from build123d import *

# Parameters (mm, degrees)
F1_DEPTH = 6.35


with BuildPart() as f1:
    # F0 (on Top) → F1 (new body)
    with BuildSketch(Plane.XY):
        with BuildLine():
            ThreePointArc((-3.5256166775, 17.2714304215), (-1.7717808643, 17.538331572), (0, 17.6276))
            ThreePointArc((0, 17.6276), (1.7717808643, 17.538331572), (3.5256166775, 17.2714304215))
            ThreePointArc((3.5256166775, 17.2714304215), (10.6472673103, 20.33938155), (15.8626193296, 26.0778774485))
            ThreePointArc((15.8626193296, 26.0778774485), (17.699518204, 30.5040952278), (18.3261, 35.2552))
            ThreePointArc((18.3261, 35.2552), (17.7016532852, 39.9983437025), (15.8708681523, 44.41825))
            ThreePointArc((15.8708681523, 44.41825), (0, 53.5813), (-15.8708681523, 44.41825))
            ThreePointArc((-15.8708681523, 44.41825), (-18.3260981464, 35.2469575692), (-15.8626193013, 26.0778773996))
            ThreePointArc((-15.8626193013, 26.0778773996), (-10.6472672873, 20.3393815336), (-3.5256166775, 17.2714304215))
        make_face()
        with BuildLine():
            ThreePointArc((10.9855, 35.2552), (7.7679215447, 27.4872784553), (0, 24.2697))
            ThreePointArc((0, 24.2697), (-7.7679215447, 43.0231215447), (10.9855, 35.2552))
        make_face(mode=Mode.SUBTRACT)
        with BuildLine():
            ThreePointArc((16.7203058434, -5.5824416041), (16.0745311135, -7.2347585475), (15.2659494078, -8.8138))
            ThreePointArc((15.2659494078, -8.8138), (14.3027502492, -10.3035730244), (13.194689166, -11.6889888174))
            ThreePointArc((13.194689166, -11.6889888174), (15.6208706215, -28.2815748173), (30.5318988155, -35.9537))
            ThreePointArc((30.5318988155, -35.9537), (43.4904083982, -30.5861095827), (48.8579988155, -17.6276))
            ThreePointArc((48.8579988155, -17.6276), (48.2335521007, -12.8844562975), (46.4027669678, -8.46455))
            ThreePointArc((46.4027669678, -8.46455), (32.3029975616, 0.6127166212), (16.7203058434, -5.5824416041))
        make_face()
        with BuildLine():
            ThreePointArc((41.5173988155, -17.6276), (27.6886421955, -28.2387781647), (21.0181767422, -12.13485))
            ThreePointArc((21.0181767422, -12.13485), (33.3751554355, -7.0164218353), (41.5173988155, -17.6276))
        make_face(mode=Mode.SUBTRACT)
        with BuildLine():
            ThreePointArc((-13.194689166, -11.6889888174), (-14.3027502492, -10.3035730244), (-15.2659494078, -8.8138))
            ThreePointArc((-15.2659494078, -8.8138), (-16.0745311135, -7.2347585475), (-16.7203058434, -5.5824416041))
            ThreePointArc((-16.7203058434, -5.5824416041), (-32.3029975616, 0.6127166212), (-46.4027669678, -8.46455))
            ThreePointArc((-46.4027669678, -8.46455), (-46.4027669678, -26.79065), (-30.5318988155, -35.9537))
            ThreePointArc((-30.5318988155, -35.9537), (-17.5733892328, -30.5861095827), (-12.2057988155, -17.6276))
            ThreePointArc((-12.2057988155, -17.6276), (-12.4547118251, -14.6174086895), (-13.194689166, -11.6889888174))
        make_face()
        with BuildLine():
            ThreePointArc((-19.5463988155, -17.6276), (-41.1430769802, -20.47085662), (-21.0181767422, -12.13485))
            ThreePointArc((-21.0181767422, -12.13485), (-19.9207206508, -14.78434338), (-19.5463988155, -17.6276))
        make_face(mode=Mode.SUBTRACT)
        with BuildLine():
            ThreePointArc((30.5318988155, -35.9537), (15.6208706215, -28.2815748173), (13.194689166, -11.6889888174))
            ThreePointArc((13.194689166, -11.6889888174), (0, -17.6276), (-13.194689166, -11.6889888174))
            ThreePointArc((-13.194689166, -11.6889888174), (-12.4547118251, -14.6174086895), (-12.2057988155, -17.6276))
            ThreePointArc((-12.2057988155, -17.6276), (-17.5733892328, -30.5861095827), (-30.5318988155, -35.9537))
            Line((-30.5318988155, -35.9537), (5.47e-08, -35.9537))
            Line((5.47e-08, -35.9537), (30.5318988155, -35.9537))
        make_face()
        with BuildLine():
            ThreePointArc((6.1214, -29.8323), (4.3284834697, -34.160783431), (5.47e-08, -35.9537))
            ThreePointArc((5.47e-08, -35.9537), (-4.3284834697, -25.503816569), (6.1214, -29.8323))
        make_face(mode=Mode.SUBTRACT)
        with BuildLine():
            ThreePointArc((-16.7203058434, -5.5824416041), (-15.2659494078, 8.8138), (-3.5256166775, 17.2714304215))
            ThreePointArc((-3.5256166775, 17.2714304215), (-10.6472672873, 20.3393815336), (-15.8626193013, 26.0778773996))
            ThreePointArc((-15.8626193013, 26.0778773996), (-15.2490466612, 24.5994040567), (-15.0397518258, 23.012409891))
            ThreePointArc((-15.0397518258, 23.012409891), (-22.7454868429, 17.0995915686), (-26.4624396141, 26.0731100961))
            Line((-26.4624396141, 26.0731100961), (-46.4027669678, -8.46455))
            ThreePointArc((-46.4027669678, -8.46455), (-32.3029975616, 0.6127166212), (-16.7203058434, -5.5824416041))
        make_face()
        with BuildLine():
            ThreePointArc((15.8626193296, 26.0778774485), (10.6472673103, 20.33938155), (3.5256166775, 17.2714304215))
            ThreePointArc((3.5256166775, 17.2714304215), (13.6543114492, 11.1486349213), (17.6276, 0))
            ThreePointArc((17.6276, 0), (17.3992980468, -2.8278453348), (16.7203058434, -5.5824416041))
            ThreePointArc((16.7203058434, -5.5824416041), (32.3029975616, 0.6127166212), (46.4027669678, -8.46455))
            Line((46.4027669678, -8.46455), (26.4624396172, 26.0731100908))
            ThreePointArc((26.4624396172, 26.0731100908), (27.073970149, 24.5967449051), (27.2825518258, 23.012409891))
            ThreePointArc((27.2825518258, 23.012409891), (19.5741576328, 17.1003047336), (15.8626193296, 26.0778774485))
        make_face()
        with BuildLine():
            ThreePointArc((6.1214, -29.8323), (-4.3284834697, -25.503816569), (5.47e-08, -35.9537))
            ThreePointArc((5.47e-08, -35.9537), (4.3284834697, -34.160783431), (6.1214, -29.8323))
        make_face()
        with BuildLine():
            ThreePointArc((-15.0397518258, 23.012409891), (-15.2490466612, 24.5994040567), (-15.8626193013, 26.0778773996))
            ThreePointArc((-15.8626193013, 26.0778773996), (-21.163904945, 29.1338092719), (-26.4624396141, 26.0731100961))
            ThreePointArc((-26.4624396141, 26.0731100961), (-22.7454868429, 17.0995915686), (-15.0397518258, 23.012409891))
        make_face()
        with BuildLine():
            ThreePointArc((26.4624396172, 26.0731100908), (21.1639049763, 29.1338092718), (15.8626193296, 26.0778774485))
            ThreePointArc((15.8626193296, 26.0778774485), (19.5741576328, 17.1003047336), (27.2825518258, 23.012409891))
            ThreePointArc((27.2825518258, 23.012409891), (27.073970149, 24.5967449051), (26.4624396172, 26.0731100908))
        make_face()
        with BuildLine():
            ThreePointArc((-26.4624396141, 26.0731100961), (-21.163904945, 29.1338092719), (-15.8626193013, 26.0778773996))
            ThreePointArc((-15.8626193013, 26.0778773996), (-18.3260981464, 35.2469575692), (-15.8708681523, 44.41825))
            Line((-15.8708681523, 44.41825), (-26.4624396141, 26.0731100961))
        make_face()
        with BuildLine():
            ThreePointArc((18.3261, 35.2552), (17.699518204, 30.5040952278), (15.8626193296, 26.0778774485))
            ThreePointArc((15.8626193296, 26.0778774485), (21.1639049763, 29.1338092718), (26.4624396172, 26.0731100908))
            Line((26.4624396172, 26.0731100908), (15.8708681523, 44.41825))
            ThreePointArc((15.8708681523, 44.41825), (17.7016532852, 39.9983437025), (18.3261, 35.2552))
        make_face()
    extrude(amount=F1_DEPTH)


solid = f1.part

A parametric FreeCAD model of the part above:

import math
import FreeCAD as App
import Part
import Sketcher
from FreeCAD import Vector
Q = App.Units.Quantity

doc = App.newDocument("Part")
body = doc.addObject("PartDesign::Body", "Body")

sketch1 = body.newObject("Sketcher::SketchObject", "Sketch")
sketch1.AttachmentSupport = (doc.getObject("XY_Plane"), [""])
sketch1.MapMode = "FlatFace"
sketch1.addGeometry(Part.LineSegment(Vector(-26.5, 26.1, 0), Vector(-46.4, -8.5, 0)), False)
sketch1.addGeometry(Part.ArcOfCircle(Part.Circle(Vector(-30.5, -17.6, 0), Vector(0, 0, 1), 18.3), math.radians(150), math.radians(270)), False)
sketch1.addGeometry(Part.LineSegment(Vector(-30.5, -36, 0), Vector(30.5, -36, 0)), False)
sketch1.addGeometry(Part.ArcOfCircle(Part.Circle(Vector(30.5, -17.6, 0), Vector(0, 0, 1), 18.3), math.radians(-90), math.radians(0)), False)
sketch1.addGeometry(Part.ArcOfCircle(Part.Circle(Vector(30.5, -17.6, 0), Vector(0, 0, 1), 18.3), math.radians(0), math.radians(30)), False)
sketch1.addGeometry(Part.LineSegment(Vector(46.4, -8.5, 0), Vector(15.9, 44.4, 0)), False)
sketch1.addGeometry(Part.ArcOfCircle(Part.Circle(Vector(0, 35.3, 0), Vector(0, 0, 1), 18.3), math.radians(30), math.radians(150)), False)
sketch1.addGeometry(Part.LineSegment(Vector(-15.9, 44.4, 0), Vector(-26.5, 26.1, 0)), False)
sketch1.addGeometry(Part.ArcOfCircle(Part.Circle(Vector(-30.5, -17.6, 0), Vector(0, 0, 1), 11), math.radians(30), math.radians(360)), False)
sketch1.addGeometry(Part.ArcOfCircle(Part.Circle(Vector(-30.5, -17.6, 0), Vector(0, 0, 1), 11), math.radians(0), math.radians(30)), False)
sketch1.addGeometry(Part.ArcOfCircle(Part.Circle(Vector(0, 0, 0), Vector(0, 0, 1), 17.6), math.radians(78.46), math.radians(90)), False)
sketch1.addGeometry(Part.ArcOfCircle(Part.Circle(Vector(0, 0, 0), Vector(0, 0, 1), 17.6), math.radians(0), math.radians(78)), False)
sketch1.addGeometry(Part.ArcOfCircle(Part.Circle(Vector(0, 0, 0), Vector(0, 0, 1), 17.6), math.radians(-18.46), math.radians(0)), False)
sketch1.addGeometry(Part.ArcOfCircle(Part.Circle(Vector(0, 0, 0), Vector(0, 0, 1), 17.6), math.radians(-30), math.radians(-18.46)), False)
sketch1.addGeometry(Part.ArcOfCircle(Part.Circle(Vector(0, 0, 0), Vector(0, 0, 1), 17.6), math.radians(-41.54), math.radians(-30)), False)
sketch1.addGeometry(Part.ArcOfCircle(Part.Circle(Vector(0, 0, 0), Vector(0, 0, 1), 17.6), math.radians(-138), math.radians(-42)), False)
sketch1.addGeometry(Part.ArcOfCircle(Part.Circle(Vector(0, 0, 0), Vector(0, 0, 1), 17.6), math.radians(-150), math.radians(-138.46)), False)
sketch1.addGeometry(Part.ArcOfCircle(Part.Circle(Vector(0, 0, 0), Vector(0, 0, 1), 17.6), math.radians(-161.54), math.radians(-150)), False)
sketch1.addGeometry(Part.ArcOfCircle(Part.Circle(Vector(0, 0, 0), Vector(0, 0, 1), 17.6), math.radians(102), math.radians(198)), False)
sketch1.addGeometry(Part.ArcOfCircle(Part.Circle(Vector(0, 0, 0), Vector(0, 0, 1), 17.6), math.radians(90), math.radians(101.54)), False)
sketch1.addGeometry(Part.Circle(Vector(30.5, -17.6, 0), Vector(0, 0, 1), 11), False)
sketch1.addGeometry(Part.ArcOfCircle(Part.Circle(Vector(0, 35.3, 0), Vector(0, 0, 1), 11), math.radians(0), math.radians(270)), False)
sketch1.addGeometry(Part.ArcOfCircle(Part.Circle(Vector(0, 35.3, 0), Vector(0, 0, 1), 11), math.radians(-90), math.radians(0)), False)
sketch1.addConstraint(Sketcher.Constraint("Tangent", 0, 2, 1, 1))
sketch1.addConstraint(Sketcher.Constraint("Tangent", 1, 2, 2, 1))
sketch1.addConstraint(Sketcher.Constraint("Tangent", 2, 2, 3, 1))
sketch1.addConstraint(Sketcher.Constraint("Tangent", 3, 2, 4, 1))
sketch1.addConstraint(Sketcher.Constraint("Tangent", 4, 2, 5, 1))
sketch1.addConstraint(Sketcher.Constraint("Tangent", 5, 2, 6, 1))
sketch1.addConstraint(Sketcher.Constraint("Tangent", 6, 2, 7, 1))
sketch1.addConstraint(Sketcher.Constraint("Coincident", 7, 2, 0, 1))
sketch1.addConstraint(Sketcher.Constraint("Tangent", 8, 1, 9, 2))
sketch1.addConstraint(Sketcher.Constraint("Coincident", 9, 1, 8, 2))
sketch1.addConstraint(Sketcher.Constraint("Tangent", 10, 1, 11, 2))
sketch1.addConstraint(Sketcher.Constraint("Tangent", 11, 1, 12, 2))
sketch1.addConstraint(Sketcher.Constraint("Tangent", 12, 1, 13, 2))
sketch1.addConstraint(Sketcher.Constraint("Tangent", 13, 1, 14, 2))
sketch1.addConstraint(Sketcher.Constraint("Tangent", 14, 1, 15, 2))
sketch1.addConstraint(Sketcher.Constraint("Tangent", 15, 1, 16, 2))
sketch1.addConstraint(Sketcher.Constraint("Tangent", 16, 1, 17, 2))
sketch1.addConstraint(Sketcher.Constraint("Tangent", 17, 1, 18, 2))
sketch1.addConstraint(Sketcher.Constraint("Tangent", 18, 1, 19, 2))
sketch1.addConstraint(Sketcher.Constraint("Tangent", 19, 1, 10, 2))
sketch1.addConstraint(Sketcher.Constraint("Tangent", 21, 1, 22, 2))
sketch1.addConstraint(Sketcher.Constraint("Coincident", 22, 1, 21, 2))
sketch1.addConstraint(Sketcher.Constraint("Horizontal", 2))
sketch1.addConstraint(Sketcher.Constraint("Coincident", 10, 3, -1, 1))
sketch1.addConstraint(Sketcher.Constraint("Coincident", 12, 3, -1, 1))
sketch1.addConstraint(Sketcher.Constraint("Coincident", 14, 3, -1, 1))
sketch1.addConstraint(Sketcher.Constraint("Coincident", 16, 3, -1, 1))
sketch1.addConstraint(Sketcher.Constraint("Coincident", 8, 3, 1, 3))
sketch1.addConstraint(Sketcher.Constraint("Coincident", 20, 3, 3, 3))
sketch1.addConstraint(Sketcher.Constraint("Coincident", 21, 3, 6, 3))
sketch1.addConstraint(Sketcher.Constraint("Equal", 1, 3))
sketch1.addConstraint(Sketcher.Constraint("Equal", 3, 4))
sketch1.addConstraint(Sketcher.Constraint("Equal", 4, 6))
sketch1.addConstraint(Sketcher.Constraint("Equal", 16, 17))
sketch1.addConstraint(Sketcher.Constraint("Equal", 9, 20))
sketch1.addConstraint(Sketcher.Constraint("Equal", 20, 21))
sketch1.addConstraint(Sketcher.Constraint("Symmetric", 0, 2, 4, 2, -2))
sketch1.addConstraint(Sketcher.Constraint("PointOnObject", 6, 3, -2))
sketch1.addConstraint(Sketcher.Constraint("PointOnObject", 11, 1, -1))
sketch1.addConstraint(Sketcher.Constraint("PointOnObject", 19, 1, -2))
sketch1.addConstraint(Sketcher.Constraint("PointOnObject", 22, 1, -2))
sketch1.addConstraint(Sketcher.Constraint("Horizontal", 20, 3, 3, 2))
sketch1.addConstraint(Sketcher.Constraint("Horizontal", 3, 2, 9, 1))
sketch1.addConstraint(Sketcher.Constraint("Horizontal", 14, 1, 15, 1))
sketch1.addConstraint(Sketcher.Constraint("Horizontal", 13, 1, 16, 1))
sketch1.addConstraint(Sketcher.Constraint("Horizontal", 12, 1, 17, 1))
sketch1.addConstraint(Sketcher.Constraint("Horizontal", 10, 1, 18, 1))
sketch1.addConstraint(Sketcher.Constraint("Horizontal", 22, 3, 21, 1))
sketch1.addConstraint(Sketcher.Constraint("Diameter", 20, Q("0.865 in")))
sketch1.addConstraint(Sketcher.Constraint("Angle", 0, Q("-120 deg")))
sketch1.addConstraint(Sketcher.Constraint("Radius", 10, Q("0.694 in")))
sketch1.addConstraint(Sketcher.Constraint("Radius", 1, Q("0.7215 in")))
sketch1.addConstraint(Sketcher.Constraint("DistanceY", 1, 3, -1, 1, Q("0.694 in")))
sketch1.addConstraint(Sketcher.Constraint("DistanceY", -1, 1, 6, 3, Q("1.388 in")))
sketch1.addConstraint(Sketcher.Constraint("DistanceY", 13, 1, -1, 1, Q("0.347 in")))
sketch1.addConstraint(Sketcher.Constraint("DistanceX", 7, 2, -1, 1, Q("26.46244 mm")))
sketch1.addConstraint(Sketcher.Constraint("DistanceY", 8, 1, -1, 1, Q("12.13485 mm")))
sketch1.addConstraint(Sketcher.Constraint("DistanceY", -1, 1, 10, 1, Q("17.27143 mm")))
sketch1.addConstraint(Sketcher.Constraint("DistanceY", 12, 1, -1, 1, Q("5.582442 mm")))
sketch1.addConstraint(Sketcher.Constraint("DistanceX", -1, 1, 14, 1, Q("13.194689 mm")))
pad1 = body.newObject("PartDesign::Pad", "Pad")
pad1.Profile = sketch1
pad1.Length = Q("0.25 in")

doc.recompute()
